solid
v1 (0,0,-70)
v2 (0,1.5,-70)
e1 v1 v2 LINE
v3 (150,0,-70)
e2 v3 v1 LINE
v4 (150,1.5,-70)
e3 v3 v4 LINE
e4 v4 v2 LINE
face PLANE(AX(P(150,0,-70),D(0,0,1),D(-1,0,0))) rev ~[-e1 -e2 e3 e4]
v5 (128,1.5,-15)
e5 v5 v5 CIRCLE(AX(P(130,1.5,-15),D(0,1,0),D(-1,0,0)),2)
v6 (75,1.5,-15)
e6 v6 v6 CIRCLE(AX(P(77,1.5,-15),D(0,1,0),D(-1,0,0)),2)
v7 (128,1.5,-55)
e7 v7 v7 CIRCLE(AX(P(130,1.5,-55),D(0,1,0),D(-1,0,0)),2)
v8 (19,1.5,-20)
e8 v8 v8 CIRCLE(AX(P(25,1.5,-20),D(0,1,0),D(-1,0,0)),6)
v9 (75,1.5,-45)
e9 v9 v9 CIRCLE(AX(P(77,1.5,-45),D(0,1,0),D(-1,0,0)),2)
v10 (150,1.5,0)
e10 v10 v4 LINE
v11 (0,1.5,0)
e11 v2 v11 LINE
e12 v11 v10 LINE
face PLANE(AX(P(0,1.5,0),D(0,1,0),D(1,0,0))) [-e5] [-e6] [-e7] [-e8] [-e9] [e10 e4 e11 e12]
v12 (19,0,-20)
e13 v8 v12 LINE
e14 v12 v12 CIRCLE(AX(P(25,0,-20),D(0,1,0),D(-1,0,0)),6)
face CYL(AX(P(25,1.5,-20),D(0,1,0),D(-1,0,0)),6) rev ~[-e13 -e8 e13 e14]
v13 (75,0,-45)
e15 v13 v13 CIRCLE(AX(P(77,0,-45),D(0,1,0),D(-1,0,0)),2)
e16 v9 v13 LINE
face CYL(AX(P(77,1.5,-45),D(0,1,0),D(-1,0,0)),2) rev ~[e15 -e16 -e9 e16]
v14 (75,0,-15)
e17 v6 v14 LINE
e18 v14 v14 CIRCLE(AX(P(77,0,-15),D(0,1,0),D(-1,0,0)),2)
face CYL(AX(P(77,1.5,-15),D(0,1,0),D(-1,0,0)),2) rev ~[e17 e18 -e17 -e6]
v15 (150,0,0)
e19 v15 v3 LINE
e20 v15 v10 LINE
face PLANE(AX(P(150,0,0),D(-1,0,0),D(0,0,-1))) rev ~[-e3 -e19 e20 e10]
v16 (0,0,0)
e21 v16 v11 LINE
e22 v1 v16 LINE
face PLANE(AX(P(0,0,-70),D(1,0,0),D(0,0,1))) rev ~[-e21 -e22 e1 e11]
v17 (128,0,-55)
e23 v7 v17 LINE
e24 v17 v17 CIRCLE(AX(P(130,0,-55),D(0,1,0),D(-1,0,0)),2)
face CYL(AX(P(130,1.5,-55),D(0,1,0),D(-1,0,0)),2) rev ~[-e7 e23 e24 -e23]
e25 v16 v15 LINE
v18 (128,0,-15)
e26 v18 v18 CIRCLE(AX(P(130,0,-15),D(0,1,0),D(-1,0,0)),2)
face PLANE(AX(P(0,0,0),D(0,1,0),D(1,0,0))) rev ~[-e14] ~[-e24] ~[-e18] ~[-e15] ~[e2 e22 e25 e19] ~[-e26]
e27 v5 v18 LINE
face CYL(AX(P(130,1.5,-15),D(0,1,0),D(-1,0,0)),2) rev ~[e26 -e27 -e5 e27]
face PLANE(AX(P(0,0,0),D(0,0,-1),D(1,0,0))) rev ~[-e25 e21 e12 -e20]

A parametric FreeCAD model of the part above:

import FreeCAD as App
import Part
import Sketcher
from FreeCAD import Vector
Q = App.Units.Quantity

doc = App.newDocument("Part")
body = doc.addObject("PartDesign::Body", "Body")

sketch1 = doc.addObject("Sketcher::SketchObject", "Sketch")
body.addObject(sketch1)
sketch1.AttachmentSupport = (doc.XZ_Plane, [""])
sketch1.MapMode = "FlatFace"
sketch1.addGeometry(Part.LineSegment(Vector(0, -70, 0), Vector(0, 0, 0)), False)
sketch1.addGeometry(Part.LineSegment(Vector(0, 0, 0), Vector(150, 0, 0)), False)
sketch1.addGeometry(Part.LineSegment(Vector(150, 0, 0), Vector(150, -70, 0)), False)
sketch1.addGeometry(Part.LineSegment(Vector(150, -70, 0), Vector(0, -70, 0)), False)
sketch1.addConstraint(Sketcher.Constraint("Coincident", 0, 2, 1, 1))
sketch1.addConstraint(Sketcher.Constraint("Coincident", 1, 2, 2, 1))
sketch1.addConstraint(Sketcher.Constraint("Coincident", 2, 2, 3, 1))
sketch1.addConstraint(Sketcher.Constraint("Coincident", 3, 2, 0, 1))
sketch1.addConstraint(Sketcher.Constraint("Vertical", 0))
sketch1.addConstraint(Sketcher.Constraint("Horizontal", 1))
sketch1.addConstraint(Sketcher.Constraint("Vertical", 2))
sketch1.addConstraint(Sketcher.Constraint("Horizontal", 3))
sketch1.addConstraint(Sketcher.Constraint("Coincident", 0, 2, -1, 1))
sketch1.addConstraint(Sketcher.Constraint("DistanceX", 1, 1, 1, 2, Q("150 mm")))
sketch1.addConstraint(Sketcher.Constraint("DistanceY", 0, 1, 0, 2, Q("70 mm")))
pad1 = doc.addObject("PartDesign::Pad", "Pad")
body.addObject(pad1)
pad1.Profile = sketch1
pad1.Length = 1.5
pad1.Reversed = True

sketch2 = doc.addObject("Sketcher::SketchObject", "Sketch001")
body.addObject(sketch2)
sketch2.AttachmentSupport = (doc.XZ_Plane, [""])
sketch2.MapMode = "FlatFace"
sketch2.AttachmentOffset = App.Placement(Vector(0, 0, -1.5), App.Rotation())
sketch2.addGeometry(Part.Circle(Vector(130, -55, 0), Vector(0, 0, 1), 2), False)
sketch2.addGeometry(Part.Circle(Vector(77, -45, 0), Vector(0, 0, 1), 2), False)
sketch2.addGeometry(Part.Circle(Vector(77, -15, 0), Vector(0, 0, 1), 2), False)
sketch2.addGeometry(Part.Circle(Vector(130, -15, 0), Vector(0, 0, 1), 2), False)
sketch2.addGeometry(Part.Circle(Vector(25, -20, 0), Vector(0, 0, 1), 6), False)
sketch2.addConstraint(Sketcher.Constraint("Equal", 0, 1))
sketch2.addConstraint(Sketcher.Constraint("Equal", 1, 2))
sketch2.addConstraint(Sketcher.Constraint("Equal", 2, 3))
sketch2.addConstraint(Sketcher.Constraint("Horizontal", 2, 3, 3, 3))
sketch2.addConstraint(Sketcher.Constraint("Vertical", 1, 3, 2, 3))
sketch2.addConstraint(Sketcher.Constraint("Vertical", 0, 3, 3, 3))
sketch2.addConstraint(Sketcher.Constraint("Diameter", 0, Q("4 mm")))
sketch2.addConstraint(Sketcher.Constraint("Diameter", 4, Q("12 mm")))
sketch2.addConstraint(Sketcher.Constraint("DistanceY", 2, 3, -1, 1, Q("15 mm")))
sketch2.addConstraint(Sketcher.Constraint("DistanceY", 4, 3, -1, 1, Q("20 mm")))
sketch2.addConstraint(Sketcher.Constraint("DistanceX", 1, 3, 0, 3, Q("53 mm")))
sketch2.addConstraint(Sketcher.Constraint("DistanceY", 1, 3, 2, 3, Q("30 mm")))
sketch2.addConstraint(Sketcher.Constraint("DistanceY", 0, 3, 2, 3, Q("40 mm")))
sketch2.addConstraint(Sketcher.Constraint("DistanceX", -1, 1, 0, 3, Q("130 mm")))
sketch2.addConstraint(Sketcher.Constraint("DistanceX", -1, 1, 4, 3, Q("25 mm")))
pocket1 = doc.addObject("PartDesign::Pocket", "Pocket")
body.addObject(pocket1)
pocket1.Profile = sketch2
pocket1.Length = 5
pocket1.Reversed = True

doc.recompute()
